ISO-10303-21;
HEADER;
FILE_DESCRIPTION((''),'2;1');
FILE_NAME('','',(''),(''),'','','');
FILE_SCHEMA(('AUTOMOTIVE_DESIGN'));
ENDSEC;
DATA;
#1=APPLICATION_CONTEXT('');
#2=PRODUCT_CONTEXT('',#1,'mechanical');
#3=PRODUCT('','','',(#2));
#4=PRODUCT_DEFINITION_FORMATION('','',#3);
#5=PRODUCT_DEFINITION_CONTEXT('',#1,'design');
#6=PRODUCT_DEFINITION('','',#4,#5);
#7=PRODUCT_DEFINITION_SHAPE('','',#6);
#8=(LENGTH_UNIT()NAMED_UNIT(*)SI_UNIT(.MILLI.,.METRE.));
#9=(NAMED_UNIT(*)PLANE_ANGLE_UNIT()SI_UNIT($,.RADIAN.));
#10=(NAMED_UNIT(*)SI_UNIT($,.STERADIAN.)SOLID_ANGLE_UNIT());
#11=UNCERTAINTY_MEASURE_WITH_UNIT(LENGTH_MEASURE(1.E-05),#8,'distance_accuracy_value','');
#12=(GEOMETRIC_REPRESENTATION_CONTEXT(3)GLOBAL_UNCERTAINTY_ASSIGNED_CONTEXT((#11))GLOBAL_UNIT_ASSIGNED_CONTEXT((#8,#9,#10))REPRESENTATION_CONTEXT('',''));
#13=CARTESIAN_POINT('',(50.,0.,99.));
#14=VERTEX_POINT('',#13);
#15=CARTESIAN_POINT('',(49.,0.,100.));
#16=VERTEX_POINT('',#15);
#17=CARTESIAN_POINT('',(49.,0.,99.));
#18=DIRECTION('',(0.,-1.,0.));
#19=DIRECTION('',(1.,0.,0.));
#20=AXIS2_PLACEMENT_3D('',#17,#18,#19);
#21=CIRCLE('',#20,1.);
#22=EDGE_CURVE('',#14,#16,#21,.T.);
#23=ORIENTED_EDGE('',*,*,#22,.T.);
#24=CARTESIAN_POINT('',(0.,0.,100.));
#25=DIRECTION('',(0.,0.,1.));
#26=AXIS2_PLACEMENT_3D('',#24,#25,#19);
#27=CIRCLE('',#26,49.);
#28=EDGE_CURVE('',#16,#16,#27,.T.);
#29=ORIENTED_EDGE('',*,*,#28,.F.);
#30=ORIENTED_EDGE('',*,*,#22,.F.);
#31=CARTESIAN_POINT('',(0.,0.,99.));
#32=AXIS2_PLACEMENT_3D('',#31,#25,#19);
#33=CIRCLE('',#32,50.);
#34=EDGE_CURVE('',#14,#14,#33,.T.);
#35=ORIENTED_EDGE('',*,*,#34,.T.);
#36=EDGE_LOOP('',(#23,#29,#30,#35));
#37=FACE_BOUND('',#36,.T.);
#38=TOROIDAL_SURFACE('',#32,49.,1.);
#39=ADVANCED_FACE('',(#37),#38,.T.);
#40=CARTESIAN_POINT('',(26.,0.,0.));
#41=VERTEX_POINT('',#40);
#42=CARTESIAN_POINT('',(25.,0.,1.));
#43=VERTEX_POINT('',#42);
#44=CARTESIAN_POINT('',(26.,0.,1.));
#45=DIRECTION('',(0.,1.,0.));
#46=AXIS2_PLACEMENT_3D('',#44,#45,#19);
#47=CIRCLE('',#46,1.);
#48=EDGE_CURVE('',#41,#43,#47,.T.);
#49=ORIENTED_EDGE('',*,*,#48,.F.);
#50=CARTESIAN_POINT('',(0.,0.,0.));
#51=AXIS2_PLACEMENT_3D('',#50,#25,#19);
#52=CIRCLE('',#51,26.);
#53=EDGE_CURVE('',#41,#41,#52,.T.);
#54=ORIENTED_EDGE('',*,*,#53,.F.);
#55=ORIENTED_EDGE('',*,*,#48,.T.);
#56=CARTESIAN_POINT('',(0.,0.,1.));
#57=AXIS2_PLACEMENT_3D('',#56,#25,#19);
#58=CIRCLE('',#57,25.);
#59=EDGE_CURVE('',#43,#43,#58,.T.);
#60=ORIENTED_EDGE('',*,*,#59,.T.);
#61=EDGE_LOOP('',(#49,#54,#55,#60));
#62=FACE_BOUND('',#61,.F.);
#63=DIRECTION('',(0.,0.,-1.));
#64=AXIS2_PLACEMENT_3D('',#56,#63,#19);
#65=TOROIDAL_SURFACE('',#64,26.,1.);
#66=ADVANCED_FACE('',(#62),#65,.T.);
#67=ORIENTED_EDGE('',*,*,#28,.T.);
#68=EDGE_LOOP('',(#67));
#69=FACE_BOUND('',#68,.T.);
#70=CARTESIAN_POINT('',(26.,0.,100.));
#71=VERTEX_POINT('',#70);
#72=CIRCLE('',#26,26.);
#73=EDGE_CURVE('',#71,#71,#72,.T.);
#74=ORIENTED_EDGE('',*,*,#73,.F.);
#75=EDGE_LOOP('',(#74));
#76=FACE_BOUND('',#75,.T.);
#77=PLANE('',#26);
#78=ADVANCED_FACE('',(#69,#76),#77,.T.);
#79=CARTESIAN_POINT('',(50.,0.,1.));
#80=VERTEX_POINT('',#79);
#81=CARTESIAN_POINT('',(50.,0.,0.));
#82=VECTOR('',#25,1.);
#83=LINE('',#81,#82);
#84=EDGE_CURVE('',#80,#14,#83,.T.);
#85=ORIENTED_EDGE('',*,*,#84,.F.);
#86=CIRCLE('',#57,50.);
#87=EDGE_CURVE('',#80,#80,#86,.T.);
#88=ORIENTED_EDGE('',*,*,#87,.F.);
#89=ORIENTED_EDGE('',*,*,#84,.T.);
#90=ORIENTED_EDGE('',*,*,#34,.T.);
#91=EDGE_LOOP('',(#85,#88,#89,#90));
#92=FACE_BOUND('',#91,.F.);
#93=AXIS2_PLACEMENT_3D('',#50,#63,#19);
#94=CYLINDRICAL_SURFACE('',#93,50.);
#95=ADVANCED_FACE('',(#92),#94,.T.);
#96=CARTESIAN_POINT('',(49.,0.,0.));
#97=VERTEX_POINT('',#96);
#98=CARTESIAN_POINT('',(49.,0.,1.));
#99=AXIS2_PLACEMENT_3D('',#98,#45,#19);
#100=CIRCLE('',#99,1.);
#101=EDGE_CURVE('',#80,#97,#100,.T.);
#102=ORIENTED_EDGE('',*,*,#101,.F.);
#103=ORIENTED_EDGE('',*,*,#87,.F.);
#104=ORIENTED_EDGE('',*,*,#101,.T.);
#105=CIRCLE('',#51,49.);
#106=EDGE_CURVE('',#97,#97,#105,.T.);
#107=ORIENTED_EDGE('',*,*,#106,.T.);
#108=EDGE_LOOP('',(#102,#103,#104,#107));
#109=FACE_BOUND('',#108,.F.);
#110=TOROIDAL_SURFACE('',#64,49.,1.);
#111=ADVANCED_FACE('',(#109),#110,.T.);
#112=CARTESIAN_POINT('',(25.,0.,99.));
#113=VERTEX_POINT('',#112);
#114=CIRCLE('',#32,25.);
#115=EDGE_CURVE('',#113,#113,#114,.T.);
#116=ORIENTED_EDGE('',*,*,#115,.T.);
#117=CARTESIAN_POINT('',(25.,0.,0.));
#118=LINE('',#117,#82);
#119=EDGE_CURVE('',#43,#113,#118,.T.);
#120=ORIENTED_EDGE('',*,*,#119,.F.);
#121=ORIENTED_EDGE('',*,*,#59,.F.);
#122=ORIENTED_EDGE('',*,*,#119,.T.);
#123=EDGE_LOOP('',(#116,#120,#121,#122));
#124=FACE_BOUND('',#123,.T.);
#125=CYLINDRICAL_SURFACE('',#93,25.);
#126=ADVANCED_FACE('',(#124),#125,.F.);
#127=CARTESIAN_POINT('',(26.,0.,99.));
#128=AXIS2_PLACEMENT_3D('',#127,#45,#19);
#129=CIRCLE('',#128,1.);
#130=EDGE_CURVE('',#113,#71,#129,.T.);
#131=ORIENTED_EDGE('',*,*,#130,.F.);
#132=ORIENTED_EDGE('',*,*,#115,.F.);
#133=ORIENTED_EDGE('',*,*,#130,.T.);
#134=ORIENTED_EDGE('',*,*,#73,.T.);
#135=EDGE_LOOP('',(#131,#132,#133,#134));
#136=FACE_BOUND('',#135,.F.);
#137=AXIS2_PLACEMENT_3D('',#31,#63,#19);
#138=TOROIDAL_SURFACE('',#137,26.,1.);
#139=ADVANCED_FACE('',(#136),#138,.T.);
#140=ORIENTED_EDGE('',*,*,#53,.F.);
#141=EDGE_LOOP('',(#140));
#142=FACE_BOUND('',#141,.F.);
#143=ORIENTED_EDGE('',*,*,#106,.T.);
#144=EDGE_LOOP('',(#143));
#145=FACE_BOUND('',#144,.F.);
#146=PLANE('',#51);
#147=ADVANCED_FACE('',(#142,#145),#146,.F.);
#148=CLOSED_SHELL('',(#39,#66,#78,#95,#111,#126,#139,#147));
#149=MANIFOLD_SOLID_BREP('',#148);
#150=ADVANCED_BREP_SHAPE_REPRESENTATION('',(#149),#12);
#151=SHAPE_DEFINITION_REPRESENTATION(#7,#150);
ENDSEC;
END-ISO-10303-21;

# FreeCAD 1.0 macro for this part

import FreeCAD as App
import Part
import Sketcher
from FreeCAD import Vector


def edges_at(feature, points):
    """Names of the edges that pass closest to the given points."""
    edges = feature.Shape.Edges
    near = lambda p: min(range(len(edges)), key=lambda i: edges[i].distToShape(Part.Vertex(*p))[0])
    return sorted({f"Edge{near(p) + 1}" for p in points})


def faces_at(feature, points):
    """Names of the faces that lie closest to the given points."""
    faces = feature.Shape.Faces
    near = lambda p: min(range(len(faces)), key=lambda i: faces[i].distToShape(Part.Vertex(*p))[0])
    return sorted({f"Face{near(p) + 1}" for p in points})

doc = App.newDocument("Part")
body = doc.addObject("PartDesign::Body", "Body")

# Sketch on XY plane
sketch1 = doc.addObject("Sketcher::SketchObject", "Sketch")
body.addObject(sketch1)
sketch1.AttachmentSupport = (doc.XY_Plane, [""])
sketch1.MapMode = "FlatFace"
sketch1.addGeometry(Part.Circle(Vector(0, 0, 0), Vector(0, 0, 1), 50), False)
sketch1.addConstraint(Sketcher.Constraint("Coincident", 0, 3, -1, 1))
sketch1.addConstraint(Sketcher.Constraint("Diameter", 0, 100.0))
pad1 = doc.addObject("PartDesign::Pad", "Pad")
body.addObject(pad1)
pad1.Profile = sketch1
pad1.Length = 100
doc.recompute()

thickness = doc.addObject("PartDesign::Thickness", "Thickness")
body.addObject(thickness)
thickness.Base = (pad1, faces_at(pad1, [(0, 0, 100), (0, 0, 0)]))
thickness.Value = 25
thickness.Reversed = True
thickness.Join = "Arc"
doc.recompute()

fillet = doc.addObject("PartDesign::Fillet", "Fillet")
body.addObject(fillet)
fillet.Base = (thickness, edges_at(thickness, [
    (-50, 0, 100),
    (-25, 0, 100),
    (-50, 0, 0),
    (-25, 0, 0),
]))
fillet.Radius = 1

doc.recompute()
